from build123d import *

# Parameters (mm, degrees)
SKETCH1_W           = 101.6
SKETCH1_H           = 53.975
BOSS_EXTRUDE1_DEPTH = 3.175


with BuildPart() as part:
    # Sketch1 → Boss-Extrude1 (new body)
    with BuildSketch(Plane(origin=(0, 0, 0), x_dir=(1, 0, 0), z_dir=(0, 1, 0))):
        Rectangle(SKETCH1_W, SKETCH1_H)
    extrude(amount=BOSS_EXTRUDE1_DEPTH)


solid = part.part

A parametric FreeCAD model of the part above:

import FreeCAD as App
import Part
import Sketcher
Q = App.Units.Quantity


def add_polygon(sketch, points):
    """Adds a closed chain of lines whose ends are joined by coincident constraints."""
    first, n = sketch.GeometryCount, len(points)
    for a, b in zip(points, points[1:] + points[:1]):
        sketch.addGeometry(Part.LineSegment(App.Vector(*a, 0), App.Vector(*b, 0)), False)
    for i in range(n):
        sketch.addConstraint(Sketcher.Constraint("Coincident", first + i, 2, first + (i + 1) % n, 1))

doc = App.newDocument("Part")
body = doc.addObject("PartDesign::Body", "Body")

sketch1 = doc.addObject("Sketcher::SketchObject", "Sketch")
body.addObject(sketch1)
sketch1.AttachmentSupport = (doc.XZ_Plane, [""])
sketch1.MapMode = "FlatFace"
add_polygon(sketch1, [(-51, -27), (-51, 27), (51, 27), (51, -27)])
sketch1.addConstraint(Sketcher.Constraint("Vertical", 0))
sketch1.addConstraint(Sketcher.Constraint("Horizontal", 1))
sketch1.addConstraint(Sketcher.Constraint("Vertical", 2))
sketch1.addConstraint(Sketcher.Constraint("Horizontal", 3))
sketch1.addConstraint(Sketcher.Constraint("Symmetric", 0, 2, 2, 2, -1, 1))
sketch1.addConstraint(Sketcher.Constraint("DistanceX", 1, 1, 1, 2, Q("4 in")))
sketch1.addConstraint(Sketcher.Constraint("DistanceY", 0, 1, 0, 2, Q("2.125 in")))
pad1 = doc.addObject("PartDesign::Pad", "Pad")
body.addObject(pad1)
pad1.Profile = sketch1
pad1.Length = Q("0.125 in")
pad1.Reversed = True

doc.recompute()
